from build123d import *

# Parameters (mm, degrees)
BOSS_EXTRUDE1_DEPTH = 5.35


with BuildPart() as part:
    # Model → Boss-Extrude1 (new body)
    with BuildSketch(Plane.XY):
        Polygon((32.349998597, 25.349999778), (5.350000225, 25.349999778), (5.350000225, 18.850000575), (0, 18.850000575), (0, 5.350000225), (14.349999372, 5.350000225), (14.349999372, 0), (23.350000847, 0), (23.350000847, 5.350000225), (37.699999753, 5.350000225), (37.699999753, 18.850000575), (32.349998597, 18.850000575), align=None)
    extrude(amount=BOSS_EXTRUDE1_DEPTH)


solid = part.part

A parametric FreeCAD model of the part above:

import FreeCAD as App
import Part
import Sketcher
from FreeCAD import Vector


def add_polygon(sketch, points):
    """Adds a closed chain of lines whose ends are joined by coincident constraints."""
    first, n = sketch.GeometryCount, len(points)
    for a, b in zip(points, points[1:] + points[:1]):
        sketch.addGeometry(Part.LineSegment(App.Vector(*a, 0), App.Vector(*b, 0)), False)
    for i in range(n):
        sketch.addConstraint(Sketcher.Constraint("Coincident", first + i, 2, first + (i + 1) % n, 1))

doc = App.newDocument("Part")
body = doc.addObject("PartDesign::Body", "Body")

# Sketch on XY plane
sketch1 = body.newObject("Sketcher::SketchObject", "Sketch")
sketch1.AttachmentSupport = (doc.getObject("XY_Plane"), [""])
sketch1.MapMode = "FlatFace"
add_polygon(sketch1, [(32, 25), (5, 25), (5, 19), (0, 19), (0, 5), (14, 5), (14, 0), (23, 0), (23, 5), (38, 5), (38, 19), (32, 19)])  # lines 0-11
sketch1.addConstraint(Sketcher.Constraint("Horizontal", 0))
sketch1.addConstraint(Sketcher.Constraint("Vertical", 1))
sketch1.addConstraint(Sketcher.Constraint("Horizontal", 2))
sketch1.addConstraint(Sketcher.Constraint("Vertical", 3))
sketch1.addConstraint(Sketcher.Constraint("Horizontal", 4))
sketch1.addConstraint(Sketcher.Constraint("Vertical", 5))
sketch1.addConstraint(Sketcher.Constraint("Horizontal", 6))
sketch1.addConstraint(Sketcher.Constraint("Vertical", 7))
sketch1.addConstraint(Sketcher.Constraint("Horizontal", 8))
sketch1.addConstraint(Sketcher.Constraint("Vertical", 9))
sketch1.addConstraint(Sketcher.Constraint("Horizontal", 10))
sketch1.addConstraint(Sketcher.Constraint("Vertical", 11))
sketch1.addConstraint(Sketcher.Constraint("PointOnObject", 2, 2, -2))
sketch1.addConstraint(Sketcher.Constraint("PointOnObject", 5, 2, -1))
sketch1.addConstraint(Sketcher.Constraint("Horizontal", 4, 2, 7, 2))
sketch1.addConstraint(Sketcher.Constraint("Horizontal", 2, 2, 9, 2))
sketch1.addConstraint(Sketcher.Constraint("Equal", 4, 8))
sketch1.addConstraint(Sketcher.Constraint("Equal", 2, 10))
sketch1.addConstraint(Sketcher.Constraint("Equal", 10, 5))
sketch1.addConstraint(Sketcher.Constraint("DistanceX", 0, 2, 0, 1, 26.999998))
sketch1.addConstraint(Sketcher.Constraint("DistanceX", 6, 1, 6, 2, 9.000001))
sketch1.addConstraint(Sketcher.Constraint("DistanceY", 1, 2, 1, 1, 6.499999))
sketch1.addConstraint(Sketcher.Constraint("DistanceY", 3, 2, 3, 1, 13.5))
sketch1.addConstraint(Sketcher.Constraint("DistanceX", 2, 2, 2, 1, 5.35))
pad1 = body.newObject("PartDesign::Pad", "Pad")
pad1.Profile = sketch1
pad1.Length = 5.35

doc.recompute()
